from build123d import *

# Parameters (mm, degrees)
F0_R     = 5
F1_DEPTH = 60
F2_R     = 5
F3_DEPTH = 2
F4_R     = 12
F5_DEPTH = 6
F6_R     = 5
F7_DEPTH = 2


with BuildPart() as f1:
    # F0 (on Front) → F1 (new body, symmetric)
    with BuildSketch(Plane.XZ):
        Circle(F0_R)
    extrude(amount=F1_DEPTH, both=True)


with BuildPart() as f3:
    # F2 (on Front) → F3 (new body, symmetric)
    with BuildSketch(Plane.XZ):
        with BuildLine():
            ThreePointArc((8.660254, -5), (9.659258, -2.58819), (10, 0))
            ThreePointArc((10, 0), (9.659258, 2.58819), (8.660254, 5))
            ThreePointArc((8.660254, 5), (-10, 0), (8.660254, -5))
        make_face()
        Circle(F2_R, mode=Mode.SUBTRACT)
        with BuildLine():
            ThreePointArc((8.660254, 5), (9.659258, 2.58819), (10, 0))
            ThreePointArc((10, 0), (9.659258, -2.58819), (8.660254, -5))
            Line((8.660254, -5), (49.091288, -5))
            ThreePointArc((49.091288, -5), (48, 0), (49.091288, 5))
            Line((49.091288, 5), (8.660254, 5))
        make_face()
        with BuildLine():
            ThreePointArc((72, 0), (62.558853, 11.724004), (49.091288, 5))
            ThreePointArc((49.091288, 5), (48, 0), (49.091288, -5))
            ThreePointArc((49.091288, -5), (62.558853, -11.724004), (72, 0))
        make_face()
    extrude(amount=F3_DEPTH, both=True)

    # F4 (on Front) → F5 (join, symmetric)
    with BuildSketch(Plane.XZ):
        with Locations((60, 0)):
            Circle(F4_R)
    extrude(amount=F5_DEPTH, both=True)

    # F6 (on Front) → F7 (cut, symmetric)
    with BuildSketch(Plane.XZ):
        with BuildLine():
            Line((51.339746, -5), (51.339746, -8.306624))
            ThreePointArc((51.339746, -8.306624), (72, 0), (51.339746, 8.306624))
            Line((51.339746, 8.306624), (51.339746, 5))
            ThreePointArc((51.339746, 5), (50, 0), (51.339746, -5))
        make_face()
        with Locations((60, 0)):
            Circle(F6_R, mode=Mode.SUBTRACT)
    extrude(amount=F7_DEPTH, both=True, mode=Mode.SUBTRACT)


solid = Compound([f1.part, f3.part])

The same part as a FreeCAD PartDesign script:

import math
import FreeCAD as App
import Part
import Sketcher
Q = App.Units.Quantity

doc = App.newDocument("Part")
body = doc.addObject("PartDesign::Body", "Body")

sketch1 = body.newObject("Sketcher::SketchObject", "Sketch")
sketch1.AttachmentSupport = (doc.getObject("XZ_Plane"), [""])
sketch1.MapMode = "FlatFace"
sketch1.addGeometry(Part.Circle(App.Vector(0, 0, 0), App.Vector(0, 0, 1), 5), False)
sketch1.addConstraint(Sketcher.Constraint("Coincident", 0, 3, -1, 1))
sketch1.addConstraint(Sketcher.Constraint("Diameter", 0, Q("10 mm")))
pad1 = body.newObject("PartDesign::Pad", "Pad")
pad1.Profile = sketch1
pad1.Length = 120
pad1.Midplane = True
body2 = doc.addObject("PartDesign::Body", "Body001")

sketch2 = body2.newObject("Sketcher::SketchObject", "Sketch001")
sketch2.AttachmentSupport = (doc.getObject("XZ_Plane001"), [""])
sketch2.MapMode = "FlatFace"
sketch2.addGeometry(Part.ArcOfCircle(Part.Circle(App.Vector(0, 0, 0), App.Vector(0, 0, 1), 10), math.radians(30), math.radians(330)), False)
sketch2.addGeometry(Part.LineSegment(App.Vector(9, -5, 0), App.Vector(49, -5, 0)), False)
sketch2.addGeometry(Part.ArcOfCircle(Part.Circle(App.Vector(60, 0, 0), App.Vector(0, 0, 1), 12), math.radians(-155), math.radians(0)), False)
sketch2.addGeometry(Part.ArcOfCircle(Part.Circle(App.Vector(60, 0, 0), App.Vector(0, 0, 1), 12), math.radians(0), math.radians(155)), False)
sketch2.addGeometry(Part.LineSegment(App.Vector(49, 5, 0), App.Vector(9, 5, 0)), False)
sketch2.addGeometry(Part.Circle(App.Vector(0, 0, 0), App.Vector(0, 0, 1), 5), False)
sketch2.addConstraint(Sketcher.Constraint("Coincident", 0, 2, 1, 1))
sketch2.addConstraint(Sketcher.Constraint("Coincident", 1, 2, 2, 1))
sketch2.addConstraint(Sketcher.Constraint("Tangent", 2, 2, 3, 1))
sketch2.addConstraint(Sketcher.Constraint("Coincident", 3, 2, 4, 1))
sketch2.addConstraint(Sketcher.Constraint("Coincident", 4, 2, 0, 1))
sketch2.addConstraint(Sketcher.Constraint("Horizontal", 1))
sketch2.addConstraint(Sketcher.Constraint("Horizontal", 4))
sketch2.addConstraint(Sketcher.Constraint("Coincident", 0, 3, -1, 1))
sketch2.addConstraint(Sketcher.Constraint("Coincident", 5, 3, -1, 1))
sketch2.addConstraint(Sketcher.Constraint("Equal", 2, 3))
sketch2.addConstraint(Sketcher.Constraint("Symmetric", 1, 2, 3, 2, -1))
sketch2.addConstraint(Sketcher.Constraint("PointOnObject", 2, 2, -1))
sketch2.addConstraint(Sketcher.Constraint("Diameter", 5, Q("10 mm")))
sketch2.addConstraint(Sketcher.Constraint("Radius", 0, Q("10 mm")))
sketch2.addConstraint(Sketcher.Constraint("Radius", 2, Q("12 mm")))
sketch2.addConstraint(Sketcher.Constraint("DistanceX", -1, 1, 2, 3, Q("60 mm")))
sketch2.addConstraint(Sketcher.Constraint("DistanceY", 0, 2, -1, 1, Q("5 mm")))
pad2 = body2.newObject("PartDesign::Pad", "Pad001")
pad2.Profile = sketch2
pad2.Length = 4
pad2.Midplane = True

sketch3 = body2.newObject("Sketcher::SketchObject", "Sketch002")
sketch3.AttachmentSupport = (doc.getObject("XZ_Plane001"), [""])
sketch3.MapMode = "FlatFace"
sketch3.addGeometry(Part.Circle(App.Vector(60, 0, 0), App.Vector(0, 0, 1), 12), False)
sketch3.addConstraint(Sketcher.Constraint("PointOnObject", 0, 3, -1))
sketch3.addConstraint(Sketcher.Constraint("Diameter", 0, Q("24 mm")))
sketch3.addConstraint(Sketcher.Constraint("DistanceX", -1, 1, 0, 3, Q("60 mm")))
pad3 = body2.newObject("PartDesign::Pad", "Pad002")
pad3.Profile = sketch3
pad3.Length = 12
pad3.Midplane = True

sketch4 = body2.newObject("Sketcher::SketchObject", "Sketch003")
sketch4.AttachmentSupport = (doc.getObject("XZ_Plane001"), [""])
sketch4.MapMode = "FlatFace"
sketch4.addGeometry(Part.LineSegment(App.Vector(51.3, -5, 0), App.Vector(51.3, -8.3, 0)), False)
sketch4.addGeometry(Part.ArcOfCircle(Part.Circle(App.Vector(60, 0, 0), App.Vector(0, 0, 1), 12), math.radians(-136), math.radians(136)), False)
sketch4.addGeometry(Part.LineSegment(App.Vector(51.3, 8.3, 0), App.Vector(51.3, 5, 0)), False)
sketch4.addGeometry(Part.ArcOfCircle(Part.Circle(App.Vector(60, 0, 0), App.Vector(0, 0, 1), 10), math.radians(150), math.radians(210)), False)
sketch4.addGeometry(Part.Circle(App.Vector(60, 0, 0), App.Vector(0, 0, 1), 5), False)
sketch4.addConstraint(Sketcher.Constraint("Coincident", 0, 2, 1, 1))
sketch4.addConstraint(Sketcher.Constraint("Coincident", 1, 2, 2, 1))
sketch4.addConstraint(Sketcher.Constraint("Coincident", 2, 2, 3, 1))
sketch4.addConstraint(Sketcher.Constraint("Coincident", 3, 2, 0, 1))
sketch4.addConstraint(Sketcher.Constraint("Vertical", 0))
sketch4.addConstraint(Sketcher.Constraint("Vertical", 2))
sketch4.addConstraint(Sketcher.Constraint("Coincident", 3, 3, 1, 3))
sketch4.addConstraint(Sketcher.Constraint("Coincident", 4, 3, 1, 3))
sketch4.addConstraint(Sketcher.Constraint("Symmetric", 0, 2, 1, 2, -1))
sketch4.addConstraint(Sketcher.Constraint("Diameter", 4, Q("10 mm")))
sketch4.addConstraint(Sketcher.Constraint("Radius", 1, Q("12 mm")))
sketch4.addConstraint(Sketcher.Constraint("Radius", 3, Q("10 mm")))
sketch4.addConstraint(Sketcher.Constraint("DistanceX", -1, 1, 1, 3, Q("60 mm")))
sketch4.addConstraint(Sketcher.Constraint("DistanceY", -1, 1, 2, 2, Q("5 mm")))
pocket1 = body2.newObject("PartDesign::Pocket", "Pocket")
pocket1.Profile = sketch4
pocket1.Length = 4
pocket1.Midplane = True

doc.recompute()
